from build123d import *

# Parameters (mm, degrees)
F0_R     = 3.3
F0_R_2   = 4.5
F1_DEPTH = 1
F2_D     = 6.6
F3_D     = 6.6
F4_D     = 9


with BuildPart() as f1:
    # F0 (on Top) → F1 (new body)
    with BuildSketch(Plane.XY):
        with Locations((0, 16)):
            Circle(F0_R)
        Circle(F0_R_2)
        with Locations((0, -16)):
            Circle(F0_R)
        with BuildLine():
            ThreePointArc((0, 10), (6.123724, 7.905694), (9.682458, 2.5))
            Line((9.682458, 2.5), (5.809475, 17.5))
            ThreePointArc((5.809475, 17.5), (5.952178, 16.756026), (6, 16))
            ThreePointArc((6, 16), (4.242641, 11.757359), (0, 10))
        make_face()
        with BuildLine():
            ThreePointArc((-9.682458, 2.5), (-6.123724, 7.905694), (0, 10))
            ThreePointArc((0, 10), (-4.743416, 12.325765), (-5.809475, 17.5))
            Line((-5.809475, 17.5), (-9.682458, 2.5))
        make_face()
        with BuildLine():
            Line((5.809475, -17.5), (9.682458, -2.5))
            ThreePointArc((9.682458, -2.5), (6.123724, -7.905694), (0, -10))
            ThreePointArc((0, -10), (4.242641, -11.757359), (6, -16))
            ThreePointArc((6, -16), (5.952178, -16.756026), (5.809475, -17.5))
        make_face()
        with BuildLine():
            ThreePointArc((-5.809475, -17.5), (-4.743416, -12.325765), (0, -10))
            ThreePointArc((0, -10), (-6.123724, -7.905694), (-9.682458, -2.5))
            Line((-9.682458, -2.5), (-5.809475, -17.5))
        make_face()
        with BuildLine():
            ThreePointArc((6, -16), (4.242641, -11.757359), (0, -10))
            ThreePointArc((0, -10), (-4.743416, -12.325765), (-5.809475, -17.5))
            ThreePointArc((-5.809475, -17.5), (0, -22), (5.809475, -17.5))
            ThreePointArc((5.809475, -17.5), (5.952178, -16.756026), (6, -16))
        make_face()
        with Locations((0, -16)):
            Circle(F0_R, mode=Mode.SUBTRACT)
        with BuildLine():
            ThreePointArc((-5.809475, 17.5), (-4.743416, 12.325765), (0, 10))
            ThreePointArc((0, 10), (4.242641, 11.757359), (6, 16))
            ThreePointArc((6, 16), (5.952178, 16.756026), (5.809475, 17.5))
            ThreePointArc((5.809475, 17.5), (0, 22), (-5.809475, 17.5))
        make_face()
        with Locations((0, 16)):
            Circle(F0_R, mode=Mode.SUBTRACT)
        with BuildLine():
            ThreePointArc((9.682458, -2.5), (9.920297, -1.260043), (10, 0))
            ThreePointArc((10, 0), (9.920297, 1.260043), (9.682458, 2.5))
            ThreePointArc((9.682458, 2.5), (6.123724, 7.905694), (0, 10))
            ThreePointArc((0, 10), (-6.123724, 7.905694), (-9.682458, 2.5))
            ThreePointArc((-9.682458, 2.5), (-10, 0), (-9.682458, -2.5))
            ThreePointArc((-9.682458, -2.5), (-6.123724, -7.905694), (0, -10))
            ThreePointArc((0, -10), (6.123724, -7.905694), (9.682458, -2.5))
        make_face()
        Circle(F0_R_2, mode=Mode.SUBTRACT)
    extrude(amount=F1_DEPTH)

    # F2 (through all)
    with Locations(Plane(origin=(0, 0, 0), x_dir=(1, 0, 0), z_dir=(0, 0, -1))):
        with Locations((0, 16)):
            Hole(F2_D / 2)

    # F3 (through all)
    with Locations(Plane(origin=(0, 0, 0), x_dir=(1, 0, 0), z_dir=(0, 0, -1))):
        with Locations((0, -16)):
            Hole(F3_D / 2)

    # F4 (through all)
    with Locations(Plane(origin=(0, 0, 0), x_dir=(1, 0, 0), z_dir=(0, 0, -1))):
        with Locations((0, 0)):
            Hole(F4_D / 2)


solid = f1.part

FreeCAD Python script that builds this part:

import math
import FreeCAD as App
import Part
import Sketcher

V = App.Vector
Q = App.Units.Quantity

doc = App.newDocument("Part")
body = doc.addObject("PartDesign::Body", "Body")

# Sketch on XY plane
sketch1 = body.newObject("Sketcher::SketchObject", "Sketch")
sketch1.AttachmentSupport = (doc.getObject("XY_Plane"), [""])
sketch1.MapMode = "FlatFace"
sketch1.addGeometry(Part.ArcOfCircle(Part.Circle(V(0, 16, 0), V(0, 0, 1), 6), math.radians(14.477512), math.radians(165.522488)), False)
sketch1.addGeometry(Part.LineSegment(V(-5.809475, 17.5, 0), V(-9.682458, 2.5, 0)), False)
sketch1.addGeometry(Part.ArcOfCircle(Part.Circle(V(-0.000011, 0, 0), V(0, 0, 1), 9.999989), math.radians(165.522471), math.radians(194.477529)), False)
sketch1.addGeometry(Part.LineSegment(V(-9.682458, -2.5, 0), V(-5.809475, -17.5, 0)), False)
sketch1.addGeometry(Part.ArcOfCircle(Part.Circle(V(0, -16, 0), V(0, 0, 1), 6), math.radians(-165.522488), math.radians(-14.477512)), False)
sketch1.addGeometry(Part.LineSegment(V(5.809475, -17.5, 0), V(9.682458, -2.5, 0)), False)
sketch1.addGeometry(Part.ArcOfCircle(Part.Circle(V(0.000028, -0.000002, 0), V(0, 0, 1), 9.999972), math.radians(-14.477541), math.radians(0.000012)), False)
sketch1.addGeometry(Part.ArcOfCircle(Part.Circle(V(0.000028, 0.000002, 0), V(0, 0, 1), 9.999972), math.radians(-0.000012), math.radians(14.477541)), False)
sketch1.addGeometry(Part.LineSegment(V(9.682458, 2.5, 0), V(5.809475, 17.5, 0)), False)
sketch1.addGeometry(Part.Circle(V(0, -16, 0), V(0, 0, 1), 3.3), False)
sketch1.addGeometry(Part.Circle(V(0, 0, 0), V(0, 0, 1), 4.5), False)
sketch1.addGeometry(Part.Circle(V(0, 16, 0), V(0, 0, 1), 3.3), False)
sketch1.addConstraint(Sketcher.Constraint("Coincident", 0, 2, 1, 1))
sketch1.addConstraint(Sketcher.Constraint("Coincident", 1, 2, 2, 1))
sketch1.addConstraint(Sketcher.Constraint("Coincident", 2, 2, 3, 1))
sketch1.addConstraint(Sketcher.Constraint("Coincident", 3, 2, 4, 1))
sketch1.addConstraint(Sketcher.Constraint("Coincident", 4, 2, 5, 1))
sketch1.addConstraint(Sketcher.Constraint("Coincident", 5, 2, 6, 1))
sketch1.addConstraint(Sketcher.Constraint("Coincident", 6, 2, 7, 1))
sketch1.addConstraint(Sketcher.Constraint("Coincident", 7, 2, 8, 1))
sketch1.addConstraint(Sketcher.Constraint("Coincident", 8, 2, 0, 1))
sketch1.addConstraint(Sketcher.Constraint("Coincident", 10, 3, -1, 1))
sketch1.addConstraint(Sketcher.Constraint("Coincident", 7, 3, 6, 3))
sketch1.addConstraint(Sketcher.Constraint("Coincident", 9, 3, 4, 3))
sketch1.addConstraint(Sketcher.Constraint("Coincident", 11, 3, 0, 3))
sketch1.addConstraint(Sketcher.Constraint("PointOnObject", 0, 3, -2))
sketch1.addConstraint(Sketcher.Constraint("PointOnObject", 2, 3, -1))
sketch1.addConstraint(Sketcher.Constraint("PointOnObject", 4, 3, -2))
sketch1.addConstraint(Sketcher.Constraint("PointOnObject", 6, 2, -1))
sketch1.addConstraint(Sketcher.Constraint("Diameter", 10, Q("9 mm")))
sketch1.addConstraint(Sketcher.Constraint("Radius", 0, Q("6 mm")))
sketch1.addConstraint(Sketcher.Constraint("Radius", 4, Q("6 mm")))
sketch1.addConstraint(Sketcher.Constraint("Diameter", 9, Q("6.6 mm")))
sketch1.addConstraint(Sketcher.Constraint("Diameter", 11, Q("6.6 mm")))
sketch1.addConstraint(Sketcher.Constraint("DistanceY", -1, 1, 0, 3, Q("16 mm")))
sketch1.addConstraint(Sketcher.Constraint("DistanceY", 4, 3, -1, 1, Q("16 mm")))
sketch1.addConstraint(Sketcher.Constraint("DistanceX", -1, 1, 6, 2, Q("10 mm")))
sketch1.addConstraint(Sketcher.Constraint("DistanceY", 1, 2, 0, 2, Q("15 mm")))
sketch1.addConstraint(Sketcher.Constraint("DistanceY", 2, 2, 1, 2, Q("5 mm")))
sketch1.addConstraint(Sketcher.Constraint("DistanceY", 3, 2, 2, 2, Q("15 mm")))
sketch1.addConstraint(Sketcher.Constraint("DistanceY", 4, 2, 5, 2, Q("15 mm")))
sketch1.addConstraint(Sketcher.Constraint("DistanceY", 5, 2, 7, 2, Q("5 mm")))
sketch1.addConstraint(Sketcher.Constraint("DistanceY", 7, 2, 8, 2, Q("15 mm")))
sketch1.addConstraint(Sketcher.Constraint("DistanceY", -1, 1, 0, 2, Q("17.5 mm")))
sketch1.addConstraint(Sketcher.Constraint("DistanceY", 4, 2, -1, 1, Q("17.5 mm")))
sketch1.addConstraint(Sketcher.Constraint("Radius", 2, Q("9.999989 mm")))
sketch1.addConstraint(Sketcher.Constraint("Radius", 6, Q("9.999972 mm")))
sketch1.addConstraint(Sketcher.Constraint("DistanceX", 2, 2, -1, 1, Q("9.682458 mm")))
sketch1.addConstraint(Sketcher.Constraint("DistanceX", -1, 1, 7, 2, Q("9.682458 mm")))
pad1 = body.newObject("PartDesign::Pad", "Pad")
pad1.Profile = sketch1
pad1.Length = 1

# Sketch on XY plane
sketch2 = body.newObject("Sketcher::SketchObject", "Sketch001")
sketch2.AttachmentSupport = (doc.getObject("XY_Plane"), [""])
sketch2.MapMode = "FlatFace"
sketch2.addGeometry(Part.Circle(V(0, -16, 0), V(0, 0, 1), 3.3), False)
sketch2.addConstraint(Sketcher.Constraint("PointOnObject", 0, 3, -2))
sketch2.addConstraint(Sketcher.Constraint("Diameter", 0, Q("6.6 mm")))
sketch2.addConstraint(Sketcher.Constraint("DistanceY", 0, 3, -1, 1, Q("16 mm")))
doc.recompute()
hole = body.newObject("PartDesign::Hole", "Hole")
hole.Profile = sketch2
hole.ThreadType = "None"
hole.Diameter = 6.6
hole.DepthType = "ThroughAll"
hole.Reversed = True

# Sketch on XY plane
sketch3 = body.newObject("Sketcher::SketchObject", "Sketch002")
sketch3.AttachmentSupport = (doc.getObject("XY_Plane"), [""])
sketch3.MapMode = "FlatFace"
sketch3.addGeometry(Part.Circle(V(0, 16, 0), V(0, 0, 1), 3.3), False)
sketch3.addConstraint(Sketcher.Constraint("PointOnObject", 0, 3, -2))
sketch3.addConstraint(Sketcher.Constraint("Diameter", 0, Q("6.6 mm")))
sketch3.addConstraint(Sketcher.Constraint("DistanceY", -1, 1, 0, 3, Q("16 mm")))
doc.recompute()
hole2 = body.newObject("PartDesign::Hole", "Hole001")
hole2.Profile = sketch3
hole2.ThreadType = "None"
hole2.Diameter = 6.6
hole2.DepthType = "ThroughAll"
hole2.Reversed = True

# Sketch on XY plane
sketch4 = body.newObject("Sketcher::SketchObject", "Sketch003")
sketch4.AttachmentSupport = (doc.getObject("XY_Plane"), [""])
sketch4.MapMode = "FlatFace"
sketch4.addGeometry(Part.Circle(V(0, 0, 0), V(0, 0, 1), 4.5), False)
sketch4.addConstraint(Sketcher.Constraint("Coincident", 0, 3, -1, 1))
sketch4.addConstraint(Sketcher.Constraint("Diameter", 0, Q("9 mm")))
doc.recompute()
hole3 = body.newObject("PartDesign::Hole", "Hole002")
hole3.Profile = sketch4
hole3.ThreadType = "None"
hole3.Diameter = 9
hole3.DepthType = "ThroughAll"
hole3.Reversed = True

doc.recompute()
